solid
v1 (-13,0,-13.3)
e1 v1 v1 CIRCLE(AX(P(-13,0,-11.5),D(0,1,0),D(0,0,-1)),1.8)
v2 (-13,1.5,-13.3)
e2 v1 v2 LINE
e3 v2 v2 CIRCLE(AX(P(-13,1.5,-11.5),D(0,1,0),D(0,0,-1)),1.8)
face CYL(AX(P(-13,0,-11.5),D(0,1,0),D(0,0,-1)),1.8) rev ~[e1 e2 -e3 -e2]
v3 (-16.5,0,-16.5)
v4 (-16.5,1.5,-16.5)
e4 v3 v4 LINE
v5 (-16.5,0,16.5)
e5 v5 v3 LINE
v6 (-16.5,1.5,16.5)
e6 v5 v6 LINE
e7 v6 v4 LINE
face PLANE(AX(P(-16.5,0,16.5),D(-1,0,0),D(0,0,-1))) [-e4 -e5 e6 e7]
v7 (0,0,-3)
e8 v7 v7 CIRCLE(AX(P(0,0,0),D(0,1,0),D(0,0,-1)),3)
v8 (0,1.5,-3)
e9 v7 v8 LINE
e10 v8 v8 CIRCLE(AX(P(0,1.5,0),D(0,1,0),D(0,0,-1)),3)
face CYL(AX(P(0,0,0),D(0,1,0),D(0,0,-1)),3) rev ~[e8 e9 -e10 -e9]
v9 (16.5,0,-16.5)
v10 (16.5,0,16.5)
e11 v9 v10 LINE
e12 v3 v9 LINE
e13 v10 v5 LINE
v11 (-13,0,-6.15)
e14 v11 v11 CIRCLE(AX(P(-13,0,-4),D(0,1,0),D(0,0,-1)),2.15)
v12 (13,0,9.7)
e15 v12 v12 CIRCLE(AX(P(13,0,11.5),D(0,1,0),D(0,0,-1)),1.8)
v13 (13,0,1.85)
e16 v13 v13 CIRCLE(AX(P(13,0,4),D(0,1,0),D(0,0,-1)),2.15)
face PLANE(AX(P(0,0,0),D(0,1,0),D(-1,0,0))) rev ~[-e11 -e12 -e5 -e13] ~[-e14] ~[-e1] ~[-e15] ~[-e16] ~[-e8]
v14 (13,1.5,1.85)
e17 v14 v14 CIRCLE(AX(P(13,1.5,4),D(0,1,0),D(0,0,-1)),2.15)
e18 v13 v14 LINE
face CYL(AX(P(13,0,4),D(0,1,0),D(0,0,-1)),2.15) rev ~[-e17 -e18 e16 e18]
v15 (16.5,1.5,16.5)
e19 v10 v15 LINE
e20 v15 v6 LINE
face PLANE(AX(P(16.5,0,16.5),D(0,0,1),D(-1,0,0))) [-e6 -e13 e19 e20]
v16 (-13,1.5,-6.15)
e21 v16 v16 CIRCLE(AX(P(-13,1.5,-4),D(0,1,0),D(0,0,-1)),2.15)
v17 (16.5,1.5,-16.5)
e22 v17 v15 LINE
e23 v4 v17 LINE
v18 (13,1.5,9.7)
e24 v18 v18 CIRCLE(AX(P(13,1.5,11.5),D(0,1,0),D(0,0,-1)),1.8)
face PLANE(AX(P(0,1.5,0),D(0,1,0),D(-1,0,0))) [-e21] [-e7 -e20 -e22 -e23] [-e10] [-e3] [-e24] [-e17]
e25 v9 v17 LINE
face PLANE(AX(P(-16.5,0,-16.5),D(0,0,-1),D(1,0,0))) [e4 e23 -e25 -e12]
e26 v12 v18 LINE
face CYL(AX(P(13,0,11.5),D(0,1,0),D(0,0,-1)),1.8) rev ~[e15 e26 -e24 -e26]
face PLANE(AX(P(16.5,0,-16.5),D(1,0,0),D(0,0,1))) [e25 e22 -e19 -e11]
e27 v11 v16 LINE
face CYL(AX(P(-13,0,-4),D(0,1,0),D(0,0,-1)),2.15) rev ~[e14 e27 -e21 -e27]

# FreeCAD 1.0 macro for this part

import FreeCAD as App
import Part
import Sketcher
Q = App.Units.Quantity

doc = App.newDocument("Part")
body = doc.addObject("PartDesign::Body", "Body")

sketch1 = body.newObject("Sketcher::SketchObject", "Sketch")
sketch1.AttachmentSupport = (doc.getObject("XZ_Plane"), [""])
sketch1.MapMode = "FlatFace"
sketch1.addGeometry(Part.LineSegment(App.Vector(16, -16, 0), App.Vector(-16, -16, 0)), False)
sketch1.addGeometry(Part.LineSegment(App.Vector(-16, -16, 0), App.Vector(-16, 16, 0)), False)
sketch1.addGeometry(Part.LineSegment(App.Vector(-16, 16, 0), App.Vector(16, 16, 0)), False)
sketch1.addGeometry(Part.LineSegment(App.Vector(16, 16, 0), App.Vector(16, -16, 0)), False)
sketch1.addConstraint(Sketcher.Constraint("Coincident", 0, 2, 1, 1))
sketch1.addConstraint(Sketcher.Constraint("Coincident", 1, 2, 2, 1))
sketch1.addConstraint(Sketcher.Constraint("Coincident", 2, 2, 3, 1))
sketch1.addConstraint(Sketcher.Constraint("Coincident", 3, 2, 0, 1))
sketch1.addConstraint(Sketcher.Constraint("Horizontal", 0))
sketch1.addConstraint(Sketcher.Constraint("Vertical", 1))
sketch1.addConstraint(Sketcher.Constraint("Horizontal", 2))
sketch1.addConstraint(Sketcher.Constraint("Vertical", 3))
sketch1.addConstraint(Sketcher.Constraint("Symmetric", 0, 2, 2, 2, -1, 1))
sketch1.addConstraint(Sketcher.Constraint("Equal", 2, 1))
sketch1.addConstraint(Sketcher.Constraint("DistanceX", 0, 2, 0, 1, Q("33 mm")))
pad1 = body.newObject("PartDesign::Pad", "Pad")
pad1.Profile = sketch1
pad1.Length = 1.5
pad1.Reversed = True

sketch2 = body.newObject("Sketcher::SketchObject", "Sketch001")
sketch2.AttachmentSupport = (doc.getObject("XZ_Plane"), [""])
sketch2.MapMode = "FlatFace"
sketch2.addGeometry(Part.Circle(App.Vector(0, 0, 0), App.Vector(0, 0, 1), 3), False)
sketch2.addConstraint(Sketcher.Constraint("Coincident", 0, 3, -1, 1))
sketch2.addConstraint(Sketcher.Constraint("Diameter", 0, Q("6 mm")))
doc.recompute()
hole = body.newObject("PartDesign::Hole", "Hole")
hole.Profile = sketch2
hole.ThreadType = "None"
hole.Diameter = 6
hole.DepthType = "ThroughAll"

sketch3 = body.newObject("Sketcher::SketchObject", "Sketch002")
sketch3.AttachmentSupport = (doc.getObject("XZ_Plane"), [""])
sketch3.MapMode = "FlatFace"
sketch3.addGeometry(Part.Circle(App.Vector(-13, -4, 0), App.Vector(0, 0, 1), 2.1), False)
sketch3.addGeometry(Part.Circle(App.Vector(13, 4, 0), App.Vector(0, 0, 1), 2.1), False)
sketch3.addConstraint(Sketcher.Constraint("Equal", 0, 1))
sketch3.addConstraint(Sketcher.Constraint("Symmetric", 0, 3, 1, 3, -1, 1))
sketch3.addConstraint(Sketcher.Constraint("Diameter", 0, Q("4.3 mm")))
sketch3.addConstraint(Sketcher.Constraint("DistanceX", 0, 3, -1, 1, Q("13 mm")))
sketch3.addConstraint(Sketcher.Constraint("DistanceY", 0, 3, -1, 1, Q("4 mm")))
doc.recompute()
hole2 = body.newObject("PartDesign::Hole", "Hole001")
hole2.Profile = sketch3
hole2.ThreadType = "None"
hole2.Diameter = 4.3
hole2.DepthType = "ThroughAll"

sketch4 = body.newObject("Sketcher::SketchObject", "Sketch003")
sketch4.AttachmentSupport = (doc.getObject("XZ_Plane"), [""])
sketch4.MapMode = "FlatFace"
sketch4.addGeometry(Part.Circle(App.Vector(-13, -11.5, 0), App.Vector(0, 0, 1), 1.8), False)
sketch4.addGeometry(Part.Circle(App.Vector(13, 11.5, 0), App.Vector(0, 0, 1), 1.8), False)
sketch4.addConstraint(Sketcher.Constraint("Equal", 0, 1))
sketch4.addConstraint(Sketcher.Constraint("Symmetric", 0, 3, 1, 3, -1, 1))
sketch4.addConstraint(Sketcher.Constraint("Diameter", 0, Q("3.6 mm")))
sketch4.addConstraint(Sketcher.Constraint("DistanceX", 0, 3, -1, 1, Q("13 mm")))
sketch4.addConstraint(Sketcher.Constraint("DistanceY", 0, 3, 1, 3, Q("23 mm")))
doc.recompute()
hole3 = body.newObject("PartDesign::Hole", "Hole002")
hole3.Profile = sketch4
hole3.ThreadType = "None"
hole3.Diameter = 3.6
hole3.DepthType = "ThroughAll"

doc.recompute()
